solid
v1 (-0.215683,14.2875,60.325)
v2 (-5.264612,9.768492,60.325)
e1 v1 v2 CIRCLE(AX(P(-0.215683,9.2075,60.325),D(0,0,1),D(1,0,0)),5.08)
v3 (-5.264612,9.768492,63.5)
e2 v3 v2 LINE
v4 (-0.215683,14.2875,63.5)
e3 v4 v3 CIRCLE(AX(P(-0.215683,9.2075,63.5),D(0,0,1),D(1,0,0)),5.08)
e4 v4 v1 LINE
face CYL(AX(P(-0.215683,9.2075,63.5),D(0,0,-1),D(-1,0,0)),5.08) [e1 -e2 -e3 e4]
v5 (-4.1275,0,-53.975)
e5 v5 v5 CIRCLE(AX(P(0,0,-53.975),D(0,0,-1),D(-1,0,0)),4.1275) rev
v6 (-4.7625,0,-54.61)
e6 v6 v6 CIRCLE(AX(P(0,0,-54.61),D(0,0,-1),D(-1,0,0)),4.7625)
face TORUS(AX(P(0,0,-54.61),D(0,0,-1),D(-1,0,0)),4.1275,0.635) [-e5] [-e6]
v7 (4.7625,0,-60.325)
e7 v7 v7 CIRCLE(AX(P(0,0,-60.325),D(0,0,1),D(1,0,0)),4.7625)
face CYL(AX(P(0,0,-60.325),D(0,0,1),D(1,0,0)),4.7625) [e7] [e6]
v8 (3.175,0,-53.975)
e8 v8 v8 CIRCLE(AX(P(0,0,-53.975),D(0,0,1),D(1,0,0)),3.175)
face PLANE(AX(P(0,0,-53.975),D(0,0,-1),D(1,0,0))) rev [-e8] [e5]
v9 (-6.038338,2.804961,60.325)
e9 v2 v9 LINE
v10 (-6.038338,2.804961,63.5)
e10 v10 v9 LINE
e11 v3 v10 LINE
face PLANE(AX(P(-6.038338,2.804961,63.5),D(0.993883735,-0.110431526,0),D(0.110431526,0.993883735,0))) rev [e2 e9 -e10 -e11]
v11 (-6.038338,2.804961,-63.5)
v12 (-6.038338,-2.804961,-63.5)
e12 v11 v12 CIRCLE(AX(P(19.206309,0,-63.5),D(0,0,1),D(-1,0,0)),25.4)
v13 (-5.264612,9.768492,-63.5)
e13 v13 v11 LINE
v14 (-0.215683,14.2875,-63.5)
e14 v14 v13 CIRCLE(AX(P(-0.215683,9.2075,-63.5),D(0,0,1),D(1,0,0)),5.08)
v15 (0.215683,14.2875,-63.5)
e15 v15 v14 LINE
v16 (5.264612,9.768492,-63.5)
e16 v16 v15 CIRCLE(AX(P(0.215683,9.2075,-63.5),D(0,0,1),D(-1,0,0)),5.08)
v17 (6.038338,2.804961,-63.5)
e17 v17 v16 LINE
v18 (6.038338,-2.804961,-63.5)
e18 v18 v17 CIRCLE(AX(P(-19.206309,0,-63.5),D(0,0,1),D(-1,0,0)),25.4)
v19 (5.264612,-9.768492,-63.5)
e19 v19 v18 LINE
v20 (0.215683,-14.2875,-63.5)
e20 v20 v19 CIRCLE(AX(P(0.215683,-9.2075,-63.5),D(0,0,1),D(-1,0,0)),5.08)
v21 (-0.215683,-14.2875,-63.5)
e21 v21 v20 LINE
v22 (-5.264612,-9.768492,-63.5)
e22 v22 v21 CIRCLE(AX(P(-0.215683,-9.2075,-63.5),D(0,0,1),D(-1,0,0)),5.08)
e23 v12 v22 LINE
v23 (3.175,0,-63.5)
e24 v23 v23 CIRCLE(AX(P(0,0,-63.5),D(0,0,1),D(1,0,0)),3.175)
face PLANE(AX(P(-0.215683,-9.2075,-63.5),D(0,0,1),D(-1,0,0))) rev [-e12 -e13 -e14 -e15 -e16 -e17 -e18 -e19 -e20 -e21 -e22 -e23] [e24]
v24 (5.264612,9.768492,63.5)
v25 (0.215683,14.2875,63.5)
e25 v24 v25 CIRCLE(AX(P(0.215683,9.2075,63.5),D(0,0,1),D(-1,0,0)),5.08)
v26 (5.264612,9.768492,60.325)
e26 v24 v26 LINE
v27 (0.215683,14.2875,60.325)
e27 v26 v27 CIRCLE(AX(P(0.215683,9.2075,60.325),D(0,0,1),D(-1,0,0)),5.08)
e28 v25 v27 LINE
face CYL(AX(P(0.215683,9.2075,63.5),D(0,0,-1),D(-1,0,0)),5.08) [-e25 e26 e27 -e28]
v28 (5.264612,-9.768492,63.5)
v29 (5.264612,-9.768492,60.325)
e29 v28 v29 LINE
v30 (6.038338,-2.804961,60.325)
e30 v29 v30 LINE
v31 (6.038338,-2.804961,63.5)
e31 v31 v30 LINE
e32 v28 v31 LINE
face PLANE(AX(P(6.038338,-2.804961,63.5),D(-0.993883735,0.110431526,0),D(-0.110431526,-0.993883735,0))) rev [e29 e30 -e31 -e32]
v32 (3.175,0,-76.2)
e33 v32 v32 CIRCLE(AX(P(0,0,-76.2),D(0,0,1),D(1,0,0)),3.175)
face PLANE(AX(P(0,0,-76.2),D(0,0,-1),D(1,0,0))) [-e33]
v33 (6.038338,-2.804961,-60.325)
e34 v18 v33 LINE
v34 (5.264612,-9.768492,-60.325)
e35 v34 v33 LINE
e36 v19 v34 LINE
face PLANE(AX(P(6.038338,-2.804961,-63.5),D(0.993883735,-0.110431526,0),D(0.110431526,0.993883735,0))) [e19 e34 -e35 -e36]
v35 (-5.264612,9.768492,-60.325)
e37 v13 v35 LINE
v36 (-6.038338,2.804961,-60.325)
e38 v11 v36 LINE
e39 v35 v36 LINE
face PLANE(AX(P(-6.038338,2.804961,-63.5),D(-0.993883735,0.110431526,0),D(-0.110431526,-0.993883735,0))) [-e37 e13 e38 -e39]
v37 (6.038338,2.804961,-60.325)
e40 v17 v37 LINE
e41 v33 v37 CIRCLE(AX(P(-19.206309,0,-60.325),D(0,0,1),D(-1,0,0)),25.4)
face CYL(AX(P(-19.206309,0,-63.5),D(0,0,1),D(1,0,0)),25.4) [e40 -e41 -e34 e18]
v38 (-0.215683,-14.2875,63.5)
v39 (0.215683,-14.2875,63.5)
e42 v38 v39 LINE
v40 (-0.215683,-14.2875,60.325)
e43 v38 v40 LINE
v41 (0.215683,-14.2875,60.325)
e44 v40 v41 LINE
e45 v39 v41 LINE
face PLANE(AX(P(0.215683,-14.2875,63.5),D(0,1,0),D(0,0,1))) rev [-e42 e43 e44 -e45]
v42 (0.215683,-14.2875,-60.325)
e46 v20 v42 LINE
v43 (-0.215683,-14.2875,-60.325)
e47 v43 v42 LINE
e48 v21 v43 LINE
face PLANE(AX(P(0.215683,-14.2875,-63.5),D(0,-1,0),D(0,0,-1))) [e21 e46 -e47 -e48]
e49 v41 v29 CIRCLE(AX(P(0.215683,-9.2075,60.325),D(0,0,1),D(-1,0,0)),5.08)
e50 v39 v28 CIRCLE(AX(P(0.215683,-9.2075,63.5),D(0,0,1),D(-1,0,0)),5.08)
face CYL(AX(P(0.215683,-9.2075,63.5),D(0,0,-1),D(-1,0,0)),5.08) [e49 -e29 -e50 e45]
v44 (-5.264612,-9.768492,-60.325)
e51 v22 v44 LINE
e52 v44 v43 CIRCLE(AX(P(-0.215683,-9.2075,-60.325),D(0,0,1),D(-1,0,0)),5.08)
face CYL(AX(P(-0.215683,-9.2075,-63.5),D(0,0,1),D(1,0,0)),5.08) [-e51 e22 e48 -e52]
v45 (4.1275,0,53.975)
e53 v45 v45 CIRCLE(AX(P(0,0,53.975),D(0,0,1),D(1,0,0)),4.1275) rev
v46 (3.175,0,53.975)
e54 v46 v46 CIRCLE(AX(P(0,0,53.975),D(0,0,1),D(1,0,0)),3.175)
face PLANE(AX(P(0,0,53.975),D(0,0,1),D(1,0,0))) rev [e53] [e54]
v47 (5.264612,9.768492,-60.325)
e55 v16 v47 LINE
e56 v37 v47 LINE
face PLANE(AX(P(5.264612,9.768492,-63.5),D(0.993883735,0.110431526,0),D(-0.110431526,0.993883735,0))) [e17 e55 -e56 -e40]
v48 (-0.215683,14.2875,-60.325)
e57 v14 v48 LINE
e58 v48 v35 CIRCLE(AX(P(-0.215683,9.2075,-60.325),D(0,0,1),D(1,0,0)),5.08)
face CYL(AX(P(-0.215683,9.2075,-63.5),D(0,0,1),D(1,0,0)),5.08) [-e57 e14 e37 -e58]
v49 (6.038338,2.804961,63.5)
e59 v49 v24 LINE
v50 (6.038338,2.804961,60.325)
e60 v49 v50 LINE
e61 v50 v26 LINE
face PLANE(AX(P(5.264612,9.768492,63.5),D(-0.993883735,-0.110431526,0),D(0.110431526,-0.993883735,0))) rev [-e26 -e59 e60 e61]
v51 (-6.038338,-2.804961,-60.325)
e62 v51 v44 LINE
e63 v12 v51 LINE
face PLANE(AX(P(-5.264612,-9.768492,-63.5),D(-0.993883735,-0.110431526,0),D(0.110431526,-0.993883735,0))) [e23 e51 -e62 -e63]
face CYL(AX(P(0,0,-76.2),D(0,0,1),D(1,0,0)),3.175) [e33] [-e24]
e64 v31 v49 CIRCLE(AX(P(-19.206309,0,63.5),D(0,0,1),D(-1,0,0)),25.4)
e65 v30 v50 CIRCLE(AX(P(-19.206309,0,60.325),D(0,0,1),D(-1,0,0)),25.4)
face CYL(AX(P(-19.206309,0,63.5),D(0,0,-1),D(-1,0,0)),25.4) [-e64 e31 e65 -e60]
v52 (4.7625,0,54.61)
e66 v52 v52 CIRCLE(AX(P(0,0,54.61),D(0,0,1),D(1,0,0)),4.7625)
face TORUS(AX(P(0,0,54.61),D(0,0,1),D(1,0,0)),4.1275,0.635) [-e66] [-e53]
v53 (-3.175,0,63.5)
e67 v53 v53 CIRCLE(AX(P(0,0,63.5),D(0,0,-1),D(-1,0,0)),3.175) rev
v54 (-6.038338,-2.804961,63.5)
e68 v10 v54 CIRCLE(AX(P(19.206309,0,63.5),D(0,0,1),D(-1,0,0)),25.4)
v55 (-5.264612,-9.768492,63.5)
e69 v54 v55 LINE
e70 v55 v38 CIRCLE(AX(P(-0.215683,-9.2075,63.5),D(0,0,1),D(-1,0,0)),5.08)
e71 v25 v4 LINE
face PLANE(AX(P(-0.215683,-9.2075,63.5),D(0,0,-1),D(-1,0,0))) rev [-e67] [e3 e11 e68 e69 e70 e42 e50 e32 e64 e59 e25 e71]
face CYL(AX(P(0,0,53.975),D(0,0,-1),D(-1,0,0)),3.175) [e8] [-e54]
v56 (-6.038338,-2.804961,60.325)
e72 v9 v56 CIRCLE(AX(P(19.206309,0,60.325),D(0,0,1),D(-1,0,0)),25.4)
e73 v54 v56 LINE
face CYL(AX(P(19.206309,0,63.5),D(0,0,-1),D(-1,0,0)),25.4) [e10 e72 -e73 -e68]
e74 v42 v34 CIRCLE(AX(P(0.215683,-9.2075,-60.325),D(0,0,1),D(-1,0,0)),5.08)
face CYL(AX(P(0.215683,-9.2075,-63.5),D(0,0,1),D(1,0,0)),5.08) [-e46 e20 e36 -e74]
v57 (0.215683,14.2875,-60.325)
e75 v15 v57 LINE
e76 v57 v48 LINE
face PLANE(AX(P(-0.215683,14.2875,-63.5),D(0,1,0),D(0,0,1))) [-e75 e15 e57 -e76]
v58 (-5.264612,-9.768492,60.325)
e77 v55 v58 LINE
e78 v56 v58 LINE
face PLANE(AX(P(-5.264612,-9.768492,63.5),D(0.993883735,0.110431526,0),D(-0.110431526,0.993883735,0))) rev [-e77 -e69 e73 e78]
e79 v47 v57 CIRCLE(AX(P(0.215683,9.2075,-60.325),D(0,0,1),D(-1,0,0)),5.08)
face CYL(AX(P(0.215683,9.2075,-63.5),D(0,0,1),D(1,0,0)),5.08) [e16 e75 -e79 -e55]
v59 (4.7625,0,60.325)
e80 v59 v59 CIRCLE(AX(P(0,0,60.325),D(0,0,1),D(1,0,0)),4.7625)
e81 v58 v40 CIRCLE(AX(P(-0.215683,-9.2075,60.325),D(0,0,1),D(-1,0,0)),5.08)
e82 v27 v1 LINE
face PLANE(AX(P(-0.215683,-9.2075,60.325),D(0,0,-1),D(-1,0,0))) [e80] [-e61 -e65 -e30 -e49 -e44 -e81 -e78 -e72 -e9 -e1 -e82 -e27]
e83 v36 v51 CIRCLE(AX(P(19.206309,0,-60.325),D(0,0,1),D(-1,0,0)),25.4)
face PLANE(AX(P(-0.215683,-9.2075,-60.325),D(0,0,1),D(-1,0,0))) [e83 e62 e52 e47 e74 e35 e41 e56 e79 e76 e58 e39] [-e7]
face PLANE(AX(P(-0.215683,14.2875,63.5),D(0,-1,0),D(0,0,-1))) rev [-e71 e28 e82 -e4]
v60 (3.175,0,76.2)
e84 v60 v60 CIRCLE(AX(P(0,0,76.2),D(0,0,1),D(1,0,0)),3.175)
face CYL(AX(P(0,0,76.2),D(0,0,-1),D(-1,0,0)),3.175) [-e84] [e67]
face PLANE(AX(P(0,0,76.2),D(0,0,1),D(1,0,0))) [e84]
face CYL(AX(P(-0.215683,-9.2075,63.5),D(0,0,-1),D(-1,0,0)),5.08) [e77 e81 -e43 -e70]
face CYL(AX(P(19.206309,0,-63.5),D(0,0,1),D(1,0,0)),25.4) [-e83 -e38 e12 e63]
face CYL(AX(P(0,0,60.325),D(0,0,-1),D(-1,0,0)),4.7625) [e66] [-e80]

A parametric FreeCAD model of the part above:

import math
import FreeCAD as App
import Part
import Sketcher
Q = App.Units.Quantity


def edges_at(feature, points):
    """Names of the edges that pass closest to the given points."""
    edges = feature.Shape.Edges
    near = lambda p: min(range(len(edges)), key=lambda i: edges[i].distToShape(Part.Vertex(*p))[0])
    return sorted({f"Edge{near(p) + 1}" for p in points})

doc = App.newDocument("Part")
params = doc.addObject("Spreadsheet::Sheet", "Params")
for row, (alias, value) in enumerate([
    ("sketch1_diameter", "0.25 in"),
    ("pad1_length", "2.125 in"),
    ("sketch2_diameter", "0.375 in"),
    ("pad2_length", "0.25 in"),
    ("sketch3_radius", "1 in"),
    ("sketch3_radius2", "0.2 in"),
    ("pad3_length", "0.125 in"),
    ("fillet_radius", "0.025 in"),
    ("sketch4_diameter", "0.25 in"),
    ("pad4_length", "0.5 in"),
], start=1):
    params.set(f"A{row}", alias)
    params.set(f"B{row}", "=" + value)
    params.setAlias(f"B{row}", alias)

body = doc.addObject("PartDesign::Body", "Body")

sketch1 = body.newObject("Sketcher::SketchObject", "Sketch")
sketch1.AttachmentSupport = (doc.getObject("XY_Plane"), [""])
sketch1.MapMode = "FlatFace"
sketch1.addGeometry(Part.Circle(App.Vector(0, 0, 0), App.Vector(0, 0, 1), 3.175), False)
sketch1.addConstraint(Sketcher.Constraint("Coincident", 0, 3, -1, 1))
sketch1.addConstraint(Sketcher.Constraint("Diameter", 0, Q("0.25 in")))
sketch1.setExpression("Constraints[1]", "Params.sketch1_diameter")
pad1 = body.newObject("PartDesign::Pad", "Pad")
pad1.Profile = sketch1
pad1.setExpression("Length", "Params.pad1_length")

sketch2 = body.newObject("Sketcher::SketchObject", "Sketch001")
sketch2.AttachmentSupport = (doc.getObject("XY_Plane"), [""])
sketch2.MapMode = "FlatFace"
sketch2.AttachmentOffset = App.Placement(App.Vector(0, 0, 2.125 * 25.4), App.Rotation())
sketch2.addGeometry(Part.Circle(App.Vector(0, 0, 0), App.Vector(0, 0, 1), 4.7625), False)
sketch2.addConstraint(Sketcher.Constraint("Coincident", 0, 3, -1, 1))
sketch2.addConstraint(Sketcher.Constraint("Diameter", 0, Q("0.375 in")))
sketch2.setExpression("Constraints[1]", "Params.sketch2_diameter")
pad2 = body.newObject("PartDesign::Pad", "Pad001")
pad2.Profile = sketch2
pad2.setExpression("Length", "Params.pad2_length")

sketch3 = body.newObject("Sketcher::SketchObject", "Sketch002")
sketch3.AttachmentSupport = (doc.getObject("XY_Plane"), [""])
sketch3.MapMode = "FlatFace"
sketch3.AttachmentOffset = App.Placement(App.Vector(0, 0, 2.375 * 25.4), App.Rotation())
sketch3.addGeometry(Part.LineSegment(App.Vector(0.215683, 14.2875, 0), App.Vector(-0.215683, 14.2875, 0)), False)
sketch3.addGeometry(Part.ArcOfCircle(Part.Circle(App.Vector(-0.215683, 9.2075, 0), App.Vector(0, 0, 1), 5.08), math.radians(90), math.radians(173.659808)), False)
sketch3.addGeometry(Part.LineSegment(App.Vector(-5.264612, 9.768492, 0), App.Vector(-6.038338, 2.804961, 0)), False)
sketch3.addGeometry(Part.ArcOfCircle(Part.Circle(App.Vector(19.206309, 0, 0), App.Vector(0, 0, 1), 25.4), math.radians(173.659808), math.radians(186.340192)), False)
sketch3.addGeometry(Part.LineSegment(App.Vector(-6.038338, -2.804961, 0), App.Vector(-5.264612, -9.768492, 0)), False)
sketch3.addGeometry(Part.ArcOfCircle(Part.Circle(App.Vector(-0.215683, -9.2075, 0), App.Vector(0, 0, 1), 5.08), math.radians(-173.659808), math.radians(-90)), False)
sketch3.addGeometry(Part.LineSegment(App.Vector(-0.215683, -14.2875, 0), App.Vector(0.215683, -14.2875, 0)), False)
sketch3.addGeometry(Part.ArcOfCircle(Part.Circle(App.Vector(0.215683, -9.2075, 0), App.Vector(0, 0, 1), 5.08), math.radians(-90), math.radians(-6.340192)), False)
sketch3.addGeometry(Part.LineSegment(App.Vector(5.264612, -9.768492, 0), App.Vector(6.038338, -2.804961, 0)), False)
sketch3.addGeometry(Part.ArcOfCircle(Part.Circle(App.Vector(-19.206309, 0, 0), App.Vector(0, 0, 1), 25.4), math.radians(-6.340192), math.radians(6.340192)), False)
sketch3.addGeometry(Part.LineSegment(App.Vector(6.038338, 2.804961, 0), App.Vector(5.264612, 9.768492, 0)), False)
sketch3.addGeometry(Part.ArcOfCircle(Part.Circle(App.Vector(0.215683, 9.2075, 0), App.Vector(0, 0, 1), 5.08), math.radians(6.340192), math.radians(90)), False)
sketch3.addConstraint(Sketcher.Constraint("Tangent", 0, 2, 1, 1))
sketch3.addConstraint(Sketcher.Constraint("Tangent", 1, 2, 2, 1))
sketch3.addConstraint(Sketcher.Constraint("Tangent", 2, 2, 3, 1))
sketch3.addConstraint(Sketcher.Constraint("Tangent", 3, 2, 4, 1))
sketch3.addConstraint(Sketcher.Constraint("Tangent", 4, 2, 5, 1))
sketch3.addConstraint(Sketcher.Constraint("Tangent", 5, 2, 6, 1))
sketch3.addConstraint(Sketcher.Constraint("Tangent", 6, 2, 7, 1))
sketch3.addConstraint(Sketcher.Constraint("Tangent", 7, 2, 8, 1))
sketch3.addConstraint(Sketcher.Constraint("Tangent", 8, 2, 9, 1))
sketch3.addConstraint(Sketcher.Constraint("Tangent", 9, 2, 10, 1))
sketch3.addConstraint(Sketcher.Constraint("Tangent", 10, 2, 11, 1))
sketch3.addConstraint(Sketcher.Constraint("Tangent", 11, 2, 0, 1))
sketch3.addConstraint(Sketcher.Constraint("Horizontal", 0))
sketch3.addConstraint(Sketcher.Constraint("Horizontal", 6))
sketch3.addConstraint(Sketcher.Constraint("Equal", 1, 5))
sketch3.addConstraint(Sketcher.Constraint("Equal", 5, 7))
sketch3.addConstraint(Sketcher.Constraint("Equal", 3, 9))
sketch3.addConstraint(Sketcher.Constraint("Equal", 7, 11))
sketch3.addConstraint(Sketcher.Constraint("Symmetric", 1, 3, 7, 3, -1, 1))
sketch3.addConstraint(Sketcher.Constraint("Symmetric", 3, 3, 9, 3, -1, 1))
sketch3.addConstraint(Sketcher.Constraint("Symmetric", 4, 2, 7, 2, -2))
sketch3.addConstraint(Sketcher.Constraint("Parallel", 4, 10))
sketch3.addConstraint(Sketcher.Constraint("Radius", 3, Q("1 in")))
sketch3.addConstraint(Sketcher.Constraint("Radius", 1, Q("0.2 in")))
sketch3.addConstraint(Sketcher.Constraint("DistanceY", -1, 1, 0, 2, Q("0.5625 in")))
sketch3.addConstraint(Sketcher.Constraint("DistanceX", 0, 2, 0, 1, Q("0.431365 mm")))
sketch3.addConstraint(Sketcher.Constraint("DistanceX", -1, 1, 3, 3, Q("19.206309 mm")))
sketch3.setExpression("Constraints[22]", "Params.sketch3_radius")
sketch3.setExpression("Constraints[23]", "Params.sketch3_radius2")
pad3 = body.newObject("PartDesign::Pad", "Pad002")
pad3.Profile = sketch3
pad3.setExpression("Length", "Params.pad3_length")
doc.recompute()

mirrored = body.newObject("PartDesign::Mirrored", "Mirrored")
mirrored.Originals = [pad1, pad2, pad3]
mirrored.MirrorPlane = (doc.getObject("XY_Plane"), [""])
body.Tip = mirrored
doc.recompute()

fillet = body.newObject("PartDesign::Fillet", "Fillet")
fillet.Base = (mirrored, edges_at(mirrored, [(-4.763, 0, -53.975), (-4.763, 0, 53.975)]))
fillet.setExpression("Radius", "Params.fillet_radius")

sketch4 = body.newObject("Sketcher::SketchObject", "Sketch003")
sketch4.AttachmentSupport = (doc.getObject("XY_Plane"), [""])
sketch4.MapMode = "FlatFace"
sketch4.AttachmentOffset = App.Placement(App.Vector(0, 0, 3 * 25.4), App.Rotation())
sketch4.addGeometry(Part.Circle(App.Vector(0, 0, 0), App.Vector(0, 0, 1), 3.175), False)
sketch4.addConstraint(Sketcher.Constraint("Coincident", 0, 3, -1, 1))
sketch4.addConstraint(Sketcher.Constraint("Diameter", 0, Q("0.25 in")))
sketch4.setExpression("Constraints[1]", "Params.sketch4_diameter")
pad4 = body.newObject("PartDesign::Pad", "Pad003")
pad4.Profile = sketch4
pad4.setExpression("Length", "Params.pad4_length")
pad4.Reversed = True
doc.recompute()

mirrored2 = body.newObject("PartDesign::Mirrored", "Mirrored001")
mirrored2.Originals = [pad4]
mirrored2.MirrorPlane = (doc.getObject("XY_Plane"), [""])
body.Tip = mirrored2

doc.recompute()
